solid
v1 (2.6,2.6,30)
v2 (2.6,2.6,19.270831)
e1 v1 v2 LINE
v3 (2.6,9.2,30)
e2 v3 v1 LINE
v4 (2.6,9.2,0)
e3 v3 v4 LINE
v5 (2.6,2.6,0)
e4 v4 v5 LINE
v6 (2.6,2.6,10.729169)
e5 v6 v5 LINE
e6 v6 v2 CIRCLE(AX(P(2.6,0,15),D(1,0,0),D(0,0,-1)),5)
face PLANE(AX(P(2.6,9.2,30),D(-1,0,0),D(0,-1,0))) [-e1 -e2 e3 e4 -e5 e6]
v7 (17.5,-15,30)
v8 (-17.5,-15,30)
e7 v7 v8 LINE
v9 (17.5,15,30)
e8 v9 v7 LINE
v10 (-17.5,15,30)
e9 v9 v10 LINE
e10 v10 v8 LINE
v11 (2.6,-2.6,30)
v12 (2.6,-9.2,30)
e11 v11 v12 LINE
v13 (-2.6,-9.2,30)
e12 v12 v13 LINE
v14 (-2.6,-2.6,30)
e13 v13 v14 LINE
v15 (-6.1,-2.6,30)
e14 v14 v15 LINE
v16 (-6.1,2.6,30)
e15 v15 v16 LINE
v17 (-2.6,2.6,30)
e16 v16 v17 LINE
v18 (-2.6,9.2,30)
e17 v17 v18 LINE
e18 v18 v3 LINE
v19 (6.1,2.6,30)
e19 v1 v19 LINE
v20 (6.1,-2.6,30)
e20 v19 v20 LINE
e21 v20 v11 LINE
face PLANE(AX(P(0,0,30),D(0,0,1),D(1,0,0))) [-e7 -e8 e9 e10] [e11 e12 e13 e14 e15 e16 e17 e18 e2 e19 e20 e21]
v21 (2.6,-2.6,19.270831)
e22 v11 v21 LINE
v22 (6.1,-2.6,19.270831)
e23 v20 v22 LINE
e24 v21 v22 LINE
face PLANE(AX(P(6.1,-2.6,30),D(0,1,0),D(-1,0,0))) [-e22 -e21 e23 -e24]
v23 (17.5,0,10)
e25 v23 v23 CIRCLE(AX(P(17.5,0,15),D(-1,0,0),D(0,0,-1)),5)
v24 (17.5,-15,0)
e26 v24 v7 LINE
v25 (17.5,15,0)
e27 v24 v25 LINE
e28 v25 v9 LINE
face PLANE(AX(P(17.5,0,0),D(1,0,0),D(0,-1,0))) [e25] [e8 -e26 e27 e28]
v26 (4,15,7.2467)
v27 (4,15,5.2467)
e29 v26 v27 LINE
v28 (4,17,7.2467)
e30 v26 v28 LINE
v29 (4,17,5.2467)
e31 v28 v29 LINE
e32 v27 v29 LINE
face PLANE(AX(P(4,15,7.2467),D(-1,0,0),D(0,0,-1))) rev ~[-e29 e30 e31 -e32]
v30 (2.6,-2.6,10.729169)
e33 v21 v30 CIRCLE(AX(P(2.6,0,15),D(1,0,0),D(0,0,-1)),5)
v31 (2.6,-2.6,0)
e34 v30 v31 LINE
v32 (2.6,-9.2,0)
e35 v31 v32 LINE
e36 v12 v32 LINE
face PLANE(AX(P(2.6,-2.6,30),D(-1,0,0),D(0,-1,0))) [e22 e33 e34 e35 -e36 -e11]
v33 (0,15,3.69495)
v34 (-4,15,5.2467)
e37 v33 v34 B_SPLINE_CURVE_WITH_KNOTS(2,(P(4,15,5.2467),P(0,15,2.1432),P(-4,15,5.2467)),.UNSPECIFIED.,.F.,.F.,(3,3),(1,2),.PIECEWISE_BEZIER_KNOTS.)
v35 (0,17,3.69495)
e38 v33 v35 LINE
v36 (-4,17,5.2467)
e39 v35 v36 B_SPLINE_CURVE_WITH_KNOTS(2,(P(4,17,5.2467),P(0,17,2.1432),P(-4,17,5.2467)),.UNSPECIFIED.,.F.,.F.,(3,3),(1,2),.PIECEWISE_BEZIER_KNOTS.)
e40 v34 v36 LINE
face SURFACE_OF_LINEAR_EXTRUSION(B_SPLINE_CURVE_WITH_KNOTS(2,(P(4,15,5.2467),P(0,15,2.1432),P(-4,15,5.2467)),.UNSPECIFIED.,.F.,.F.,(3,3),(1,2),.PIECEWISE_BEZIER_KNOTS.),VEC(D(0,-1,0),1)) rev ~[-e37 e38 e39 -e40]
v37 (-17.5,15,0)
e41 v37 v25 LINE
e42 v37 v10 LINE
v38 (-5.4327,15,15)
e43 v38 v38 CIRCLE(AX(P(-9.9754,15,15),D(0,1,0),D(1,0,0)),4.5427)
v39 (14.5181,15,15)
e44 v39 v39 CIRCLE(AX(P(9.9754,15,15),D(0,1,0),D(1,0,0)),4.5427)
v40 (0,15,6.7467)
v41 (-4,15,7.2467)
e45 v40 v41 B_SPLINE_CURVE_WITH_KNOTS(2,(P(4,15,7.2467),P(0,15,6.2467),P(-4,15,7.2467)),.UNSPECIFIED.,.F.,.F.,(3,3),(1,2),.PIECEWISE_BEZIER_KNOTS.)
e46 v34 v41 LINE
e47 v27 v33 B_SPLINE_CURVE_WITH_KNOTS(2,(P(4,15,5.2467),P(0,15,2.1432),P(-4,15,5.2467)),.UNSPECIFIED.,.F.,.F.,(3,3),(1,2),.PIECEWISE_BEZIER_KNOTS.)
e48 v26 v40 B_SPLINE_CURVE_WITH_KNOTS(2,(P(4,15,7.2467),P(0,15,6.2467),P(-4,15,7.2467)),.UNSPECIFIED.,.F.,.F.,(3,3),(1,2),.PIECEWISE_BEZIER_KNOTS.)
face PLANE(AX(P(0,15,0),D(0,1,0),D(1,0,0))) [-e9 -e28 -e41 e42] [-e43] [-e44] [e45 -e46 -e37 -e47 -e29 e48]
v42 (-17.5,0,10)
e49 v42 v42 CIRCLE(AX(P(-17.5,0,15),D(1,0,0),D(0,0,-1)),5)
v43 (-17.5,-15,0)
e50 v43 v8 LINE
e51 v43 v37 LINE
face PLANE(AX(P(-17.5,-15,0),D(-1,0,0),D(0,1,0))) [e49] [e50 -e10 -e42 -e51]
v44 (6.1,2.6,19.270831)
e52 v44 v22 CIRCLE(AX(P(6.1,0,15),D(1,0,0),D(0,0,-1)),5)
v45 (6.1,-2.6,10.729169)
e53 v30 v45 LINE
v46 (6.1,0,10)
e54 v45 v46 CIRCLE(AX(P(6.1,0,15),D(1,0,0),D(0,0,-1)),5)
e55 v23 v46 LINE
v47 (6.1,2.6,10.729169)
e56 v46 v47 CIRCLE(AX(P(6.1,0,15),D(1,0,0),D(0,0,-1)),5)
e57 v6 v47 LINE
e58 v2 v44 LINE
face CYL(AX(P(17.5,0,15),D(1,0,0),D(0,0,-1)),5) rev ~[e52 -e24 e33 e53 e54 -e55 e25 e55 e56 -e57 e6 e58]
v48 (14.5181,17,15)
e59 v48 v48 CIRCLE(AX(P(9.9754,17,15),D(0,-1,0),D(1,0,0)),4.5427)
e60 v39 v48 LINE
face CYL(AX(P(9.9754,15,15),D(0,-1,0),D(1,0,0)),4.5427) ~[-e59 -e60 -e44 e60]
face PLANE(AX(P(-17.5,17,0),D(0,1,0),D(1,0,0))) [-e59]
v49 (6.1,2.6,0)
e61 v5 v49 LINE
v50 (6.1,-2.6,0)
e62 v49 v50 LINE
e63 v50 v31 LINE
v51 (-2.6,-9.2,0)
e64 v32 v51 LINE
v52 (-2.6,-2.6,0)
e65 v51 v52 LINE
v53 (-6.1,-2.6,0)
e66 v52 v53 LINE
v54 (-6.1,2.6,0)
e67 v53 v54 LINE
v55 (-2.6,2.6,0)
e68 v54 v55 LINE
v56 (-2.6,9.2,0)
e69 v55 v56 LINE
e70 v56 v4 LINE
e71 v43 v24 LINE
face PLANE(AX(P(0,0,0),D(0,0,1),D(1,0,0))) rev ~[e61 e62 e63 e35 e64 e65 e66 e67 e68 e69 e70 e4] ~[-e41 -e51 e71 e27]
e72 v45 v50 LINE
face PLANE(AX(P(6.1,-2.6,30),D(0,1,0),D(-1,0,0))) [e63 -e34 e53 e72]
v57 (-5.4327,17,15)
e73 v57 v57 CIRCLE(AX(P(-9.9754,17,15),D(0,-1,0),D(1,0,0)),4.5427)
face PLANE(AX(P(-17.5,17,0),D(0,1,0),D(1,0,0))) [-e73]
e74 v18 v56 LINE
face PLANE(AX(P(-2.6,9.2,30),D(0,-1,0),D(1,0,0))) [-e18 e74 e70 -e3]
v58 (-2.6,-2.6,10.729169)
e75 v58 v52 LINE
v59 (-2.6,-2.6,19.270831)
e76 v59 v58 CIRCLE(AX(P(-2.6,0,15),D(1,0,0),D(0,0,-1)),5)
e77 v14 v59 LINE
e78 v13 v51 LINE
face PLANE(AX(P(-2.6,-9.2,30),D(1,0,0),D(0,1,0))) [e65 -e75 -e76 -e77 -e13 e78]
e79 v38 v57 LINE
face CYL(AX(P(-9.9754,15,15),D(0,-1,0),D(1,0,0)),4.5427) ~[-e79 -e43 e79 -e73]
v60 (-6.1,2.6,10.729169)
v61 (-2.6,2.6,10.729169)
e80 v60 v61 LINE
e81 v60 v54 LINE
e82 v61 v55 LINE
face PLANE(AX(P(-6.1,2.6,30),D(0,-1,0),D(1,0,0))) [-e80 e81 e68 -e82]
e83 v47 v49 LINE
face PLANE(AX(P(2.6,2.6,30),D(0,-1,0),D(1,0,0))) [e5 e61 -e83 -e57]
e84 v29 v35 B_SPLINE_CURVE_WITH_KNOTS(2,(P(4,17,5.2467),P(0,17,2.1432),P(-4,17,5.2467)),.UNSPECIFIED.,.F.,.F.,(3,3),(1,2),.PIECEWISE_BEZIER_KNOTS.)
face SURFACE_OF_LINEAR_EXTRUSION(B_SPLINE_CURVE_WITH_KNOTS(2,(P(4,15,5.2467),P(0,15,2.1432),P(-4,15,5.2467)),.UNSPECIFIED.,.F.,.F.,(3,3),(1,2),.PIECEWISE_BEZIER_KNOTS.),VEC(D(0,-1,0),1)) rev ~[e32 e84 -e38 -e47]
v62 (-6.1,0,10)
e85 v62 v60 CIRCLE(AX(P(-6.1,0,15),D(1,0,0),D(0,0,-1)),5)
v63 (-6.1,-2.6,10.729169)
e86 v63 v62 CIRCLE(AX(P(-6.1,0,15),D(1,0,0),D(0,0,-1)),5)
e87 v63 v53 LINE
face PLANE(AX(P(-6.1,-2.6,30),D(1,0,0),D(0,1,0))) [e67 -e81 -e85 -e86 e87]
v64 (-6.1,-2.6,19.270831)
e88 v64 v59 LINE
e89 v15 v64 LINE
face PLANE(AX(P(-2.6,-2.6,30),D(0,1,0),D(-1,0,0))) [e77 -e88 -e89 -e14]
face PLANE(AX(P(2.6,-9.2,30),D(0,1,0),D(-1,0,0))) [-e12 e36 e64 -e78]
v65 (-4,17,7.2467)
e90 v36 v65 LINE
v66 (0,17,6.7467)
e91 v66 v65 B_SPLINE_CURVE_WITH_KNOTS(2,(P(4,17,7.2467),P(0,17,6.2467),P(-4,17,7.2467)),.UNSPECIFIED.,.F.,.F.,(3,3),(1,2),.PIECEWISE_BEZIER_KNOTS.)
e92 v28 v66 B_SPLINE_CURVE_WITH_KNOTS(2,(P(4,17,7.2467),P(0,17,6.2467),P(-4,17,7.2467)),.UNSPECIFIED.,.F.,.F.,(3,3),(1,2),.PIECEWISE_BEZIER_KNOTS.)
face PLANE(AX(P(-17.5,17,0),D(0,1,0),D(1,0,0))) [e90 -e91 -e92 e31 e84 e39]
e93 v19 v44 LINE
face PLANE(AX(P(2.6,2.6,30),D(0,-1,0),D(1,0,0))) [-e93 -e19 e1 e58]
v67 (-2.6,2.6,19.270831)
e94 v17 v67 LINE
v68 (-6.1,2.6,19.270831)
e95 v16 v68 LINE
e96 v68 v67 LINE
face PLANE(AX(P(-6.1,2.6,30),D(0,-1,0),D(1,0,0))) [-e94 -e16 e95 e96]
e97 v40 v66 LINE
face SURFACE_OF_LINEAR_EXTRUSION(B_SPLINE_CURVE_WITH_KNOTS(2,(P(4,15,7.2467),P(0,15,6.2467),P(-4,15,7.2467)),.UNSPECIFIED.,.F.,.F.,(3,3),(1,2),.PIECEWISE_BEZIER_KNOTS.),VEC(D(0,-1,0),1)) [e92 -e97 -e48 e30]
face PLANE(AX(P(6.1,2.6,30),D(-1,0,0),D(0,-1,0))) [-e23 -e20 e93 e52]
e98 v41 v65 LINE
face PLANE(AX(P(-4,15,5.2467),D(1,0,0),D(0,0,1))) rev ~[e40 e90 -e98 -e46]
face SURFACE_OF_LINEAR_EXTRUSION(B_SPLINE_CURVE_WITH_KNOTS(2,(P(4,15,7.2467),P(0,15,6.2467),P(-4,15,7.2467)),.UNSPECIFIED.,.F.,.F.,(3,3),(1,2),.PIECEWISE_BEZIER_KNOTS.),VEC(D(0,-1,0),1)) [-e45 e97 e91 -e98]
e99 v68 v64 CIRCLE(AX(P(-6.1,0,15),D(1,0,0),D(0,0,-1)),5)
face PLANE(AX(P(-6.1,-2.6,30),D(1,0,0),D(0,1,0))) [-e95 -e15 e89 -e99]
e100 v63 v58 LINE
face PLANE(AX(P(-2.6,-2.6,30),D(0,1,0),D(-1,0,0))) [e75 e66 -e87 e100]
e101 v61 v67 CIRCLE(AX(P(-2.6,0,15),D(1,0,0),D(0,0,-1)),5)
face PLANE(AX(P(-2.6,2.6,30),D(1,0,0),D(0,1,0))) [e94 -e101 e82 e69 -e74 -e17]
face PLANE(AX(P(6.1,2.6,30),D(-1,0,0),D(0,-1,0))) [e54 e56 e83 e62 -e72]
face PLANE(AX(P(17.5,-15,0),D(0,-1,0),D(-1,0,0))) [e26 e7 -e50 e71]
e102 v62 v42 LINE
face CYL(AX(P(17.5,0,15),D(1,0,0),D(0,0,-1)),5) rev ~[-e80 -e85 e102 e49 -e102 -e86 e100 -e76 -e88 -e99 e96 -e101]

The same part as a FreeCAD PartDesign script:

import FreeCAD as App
import Part
import Sketcher
from FreeCAD import Vector
Q = App.Units.Quantity

doc = App.newDocument("Part")
body = doc.addObject("PartDesign::Body", "Body")

# Sketch on XY plane
sketch1 = body.newObject("Sketcher::SketchObject", "Sketch")
sketch1.AttachmentSupport = (doc.getObject("XY_Plane"), [""])
sketch1.MapMode = "FlatFace"
sketch1.addGeometry(Part.LineSegment(Vector(18, -15, 0), Vector(18, 15, 0)), False)
sketch1.addGeometry(Part.LineSegment(Vector(18, 15, 0), Vector(-18, 15, 0)), False)
sketch1.addGeometry(Part.LineSegment(Vector(-18, 15, 0), Vector(-18, -15, 0)), False)
sketch1.addGeometry(Part.LineSegment(Vector(-18, -15, 0), Vector(18, -15, 0)), False)
sketch1.addConstraint(Sketcher.Constraint("Coincident", 0, 2, 1, 1))
sketch1.addConstraint(Sketcher.Constraint("Coincident", 1, 2, 2, 1))
sketch1.addConstraint(Sketcher.Constraint("Coincident", 2, 2, 3, 1))
sketch1.addConstraint(Sketcher.Constraint("Coincident", 3, 2, 0, 1))
sketch1.addConstraint(Sketcher.Constraint("Vertical", 0))
sketch1.addConstraint(Sketcher.Constraint("Horizontal", 1))
sketch1.addConstraint(Sketcher.Constraint("Vertical", 2))
sketch1.addConstraint(Sketcher.Constraint("Horizontal", 3))
sketch1.addConstraint(Sketcher.Constraint("Symmetric", 0, 2, 2, 2, -1, 1))
sketch1.addConstraint(Sketcher.Constraint("DistanceX", 1, 2, 1, 1, Q("35 mm")))
sketch1.addConstraint(Sketcher.Constraint("DistanceY", 0, 1, 0, 2, Q("30 mm")))
pad1 = body.newObject("PartDesign::Pad", "Pad")
pad1.Profile = sketch1
pad1.Length = 30

# Sketch on YZ plane
sketch2 = body.newObject("Sketcher::SketchObject", "Sketch001")
sketch2.AttachmentSupport = (doc.getObject("YZ_Plane"), [""])
sketch2.MapMode = "FlatFace"
sketch2.AttachmentOffset = App.Placement(Vector(0, 0, 17.5), App.Rotation())
sketch2.addGeometry(Part.Circle(Vector(0, 15, 0), Vector(0, 0, 1), 5), False)
sketch2.addConstraint(Sketcher.Constraint("PointOnObject", 0, 3, -2))
sketch2.addConstraint(Sketcher.Constraint("Diameter", 0, Q("10 mm")))
sketch2.addConstraint(Sketcher.Constraint("DistanceY", -1, 1, 0, 3, Q("15 mm")))
pocket1 = body.newObject("PartDesign::Pocket", "Pocket")
pocket1.Profile = sketch2
pocket1.Type = "ThroughAll"

# Sketch on XY plane
sketch3 = body.newObject("Sketcher::SketchObject", "Sketch002")
sketch3.AttachmentSupport = (doc.getObject("XY_Plane"), [""])
sketch3.MapMode = "FlatFace"
sketch3.AttachmentOffset = App.Placement(Vector(0, 0, 30), App.Rotation())
sketch3.addGeometry(Part.LineSegment(Vector(2.6, 9.2, 0), Vector(-2.6, 9.2, 0)), False)
sketch3.addGeometry(Part.LineSegment(Vector(-2.6, 9.2, 0), Vector(-2.6, 2.6, 0)), False)
sketch3.addGeometry(Part.LineSegment(Vector(-2.6, 2.6, 0), Vector(-6.1, 2.6, 0)), False)
sketch3.addGeometry(Part.LineSegment(Vector(-6.1, 2.6, 0), Vector(-6.1, -2.6, 0)), False)
sketch3.addGeometry(Part.LineSegment(Vector(-6.1, -2.6, 0), Vector(-2.6, -2.6, 0)), False)
sketch3.addGeometry(Part.LineSegment(Vector(-2.6, -2.6, 0), Vector(-2.6, -9.2, 0)), False)
sketch3.addGeometry(Part.LineSegment(Vector(-2.6, -9.2, 0), Vector(2.6, -9.2, 0)), False)
sketch3.addGeometry(Part.LineSegment(Vector(2.6, -9.2, 0), Vector(2.6, -2.6, 0)), False)
sketch3.addGeometry(Part.LineSegment(Vector(2.6, -2.6, 0), Vector(6.1, -2.6, 0)), False)
sketch3.addGeometry(Part.LineSegment(Vector(6.1, -2.6, 0), Vector(6.1, 2.6, 0)), False)
sketch3.addGeometry(Part.LineSegment(Vector(6.1, 2.6, 0), Vector(2.6, 2.6, 0)), False)
sketch3.addGeometry(Part.LineSegment(Vector(2.6, 2.6, 0), Vector(2.6, 9.2, 0)), False)
sketch3.addConstraint(Sketcher.Constraint("Coincident", 0, 2, 1, 1))
sketch3.addConstraint(Sketcher.Constraint("Coincident", 1, 2, 2, 1))
sketch3.addConstraint(Sketcher.Constraint("Coincident", 2, 2, 3, 1))
sketch3.addConstraint(Sketcher.Constraint("Coincident", 3, 2, 4, 1))
sketch3.addConstraint(Sketcher.Constraint("Coincident", 4, 2, 5, 1))
sketch3.addConstraint(Sketcher.Constraint("Coincident", 5, 2, 6, 1))
sketch3.addConstraint(Sketcher.Constraint("Coincident", 6, 2, 7, 1))
sketch3.addConstraint(Sketcher.Constraint("Coincident", 7, 2, 8, 1))
sketch3.addConstraint(Sketcher.Constraint("Coincident", 8, 2, 9, 1))
sketch3.addConstraint(Sketcher.Constraint("Coincident", 9, 2, 10, 1))
sketch3.addConstraint(Sketcher.Constraint("Coincident", 10, 2, 11, 1))
sketch3.addConstraint(Sketcher.Constraint("Coincident", 11, 2, 0, 1))
sketch3.addConstraint(Sketcher.Constraint("Horizontal", 0))
sketch3.addConstraint(Sketcher.Constraint("Vertical", 1))
sketch3.addConstraint(Sketcher.Constraint("Horizontal", 2))
sketch3.addConstraint(Sketcher.Constraint("Vertical", 3))
sketch3.addConstraint(Sketcher.Constraint("Horizontal", 4))
sketch3.addConstraint(Sketcher.Constraint("Vertical", 5))
sketch3.addConstraint(Sketcher.Constraint("Horizontal", 6))
sketch3.addConstraint(Sketcher.Constraint("Vertical", 7))
sketch3.addConstraint(Sketcher.Constraint("Horizontal", 8))
sketch3.addConstraint(Sketcher.Constraint("Vertical", 9))
sketch3.addConstraint(Sketcher.Constraint("Horizontal", 10))
sketch3.addConstraint(Sketcher.Constraint("Vertical", 11))
sketch3.addConstraint(Sketcher.Constraint("Symmetric", 0, 2, 6, 2, -1, 1))
sketch3.addConstraint(Sketcher.Constraint("Symmetric", 2, 2, 8, 2, -1, 1))
sketch3.addConstraint(Sketcher.Constraint("Symmetric", 4, 2, 10, 2, -1, 1))
sketch3.addConstraint(Sketcher.Constraint("Symmetric", 4, 2, 7, 2, -2))
sketch3.addConstraint(Sketcher.Constraint("Equal", 6, 3))
sketch3.addConstraint(Sketcher.Constraint("DistanceX", 0, 2, 0, 1, Q("5.2 mm")))
sketch3.addConstraint(Sketcher.Constraint("DistanceX", 2, 2, 2, 1, Q("3.5 mm")))
sketch3.addConstraint(Sketcher.Constraint("DistanceY", 1, 2, 1, 1, Q("6.6 mm")))
pocket2 = body.newObject("PartDesign::Pocket", "Pocket001")
pocket2.Profile = sketch3
pocket2.Length = 30

# Sketch on XZ plane
sketch4 = body.newObject("Sketcher::SketchObject", "Sketch003")
sketch4.AttachmentSupport = (doc.getObject("XZ_Plane"), [""])
sketch4.MapMode = "FlatFace"
sketch4.AttachmentOffset = App.Placement(Vector(0, 0, -15), App.Rotation())
sketch4.addGeometry(Part.BSplineCurve([Vector(4, 5.2467, 0), Vector(2, 3.69495, 0), Vector(0, 3.69495, 0)], [3, 3], [1, 1.5], False, 2, [1, 1, 1], False), False)
sketch4.addGeometry(Part.BSplineCurve([Vector(0, 3.69495, 0), Vector(-2, 3.69495, 0), Vector(-4, 5.2467, 0)], [3, 3], [1.5, 2], False, 2, [1, 1, 1], False), False)
sketch4.addGeometry(Part.LineSegment(Vector(-4, 5.2467, 0), Vector(-4, 7.2467, 0)), False)
sketch4.addGeometry(Part.BSplineCurve([Vector(0, 6.7467, 0), Vector(-2, 6.7467, 0), Vector(-4, 7.2467, 0)], [3, 3], [1.5, 2], False, 2, [1, 1, 1], False), False)
sketch4.addGeometry(Part.BSplineCurve([Vector(4, 7.2467, 0), Vector(2, 6.7467, 0), Vector(0, 6.7467, 0)], [3, 3], [1, 1.5], False, 2, [1, 1, 1], False), False)
sketch4.addGeometry(Part.LineSegment(Vector(4, 7.2467, 0), Vector(4, 5.2467, 0)), False)
sketch4.addGeometry(Part.Circle(Vector(-9.9754, 15, 0), Vector(0, 0, 1), 4.5427), False)
sketch4.addGeometry(Part.Circle(Vector(9.9754, 15, 0), Vector(0, 0, 1), 4.5427), False)
sketch4.addConstraint(Sketcher.Constraint("Block", 0))
sketch4.addConstraint(Sketcher.Constraint("Block", 1))
sketch4.addConstraint(Sketcher.Constraint("Block", 3))
sketch4.addConstraint(Sketcher.Constraint("Block", 4))
sketch4.addConstraint(Sketcher.Constraint("Coincident", 1, 2, 2, 1))
sketch4.addConstraint(Sketcher.Constraint("Coincident", 2, 2, 3, 2))
sketch4.addConstraint(Sketcher.Constraint("Coincident", 4, 1, 5, 1))
sketch4.addConstraint(Sketcher.Constraint("Coincident", 5, 2, 0, 1))
sketch4.addConstraint(Sketcher.Constraint("Equal", 6, 7))
sketch4.addConstraint(Sketcher.Constraint("Symmetric", 6, 3, 7, 3, -2))
sketch4.addConstraint(Sketcher.Constraint("DistanceY", -1, 1, 6, 3, Q("15 mm")))
sketch4.addConstraint(Sketcher.Constraint("Diameter", 6, Q("9.0854 mm")))
sketch4.addConstraint(Sketcher.Constraint("DistanceX", 6, 3, -1, 1, Q("9.9754 mm")))
pad2 = body.newObject("PartDesign::Pad", "Pad001")
pad2.Profile = sketch4
pad2.Length = 2
pad2.Reversed = True

doc.recompute()
